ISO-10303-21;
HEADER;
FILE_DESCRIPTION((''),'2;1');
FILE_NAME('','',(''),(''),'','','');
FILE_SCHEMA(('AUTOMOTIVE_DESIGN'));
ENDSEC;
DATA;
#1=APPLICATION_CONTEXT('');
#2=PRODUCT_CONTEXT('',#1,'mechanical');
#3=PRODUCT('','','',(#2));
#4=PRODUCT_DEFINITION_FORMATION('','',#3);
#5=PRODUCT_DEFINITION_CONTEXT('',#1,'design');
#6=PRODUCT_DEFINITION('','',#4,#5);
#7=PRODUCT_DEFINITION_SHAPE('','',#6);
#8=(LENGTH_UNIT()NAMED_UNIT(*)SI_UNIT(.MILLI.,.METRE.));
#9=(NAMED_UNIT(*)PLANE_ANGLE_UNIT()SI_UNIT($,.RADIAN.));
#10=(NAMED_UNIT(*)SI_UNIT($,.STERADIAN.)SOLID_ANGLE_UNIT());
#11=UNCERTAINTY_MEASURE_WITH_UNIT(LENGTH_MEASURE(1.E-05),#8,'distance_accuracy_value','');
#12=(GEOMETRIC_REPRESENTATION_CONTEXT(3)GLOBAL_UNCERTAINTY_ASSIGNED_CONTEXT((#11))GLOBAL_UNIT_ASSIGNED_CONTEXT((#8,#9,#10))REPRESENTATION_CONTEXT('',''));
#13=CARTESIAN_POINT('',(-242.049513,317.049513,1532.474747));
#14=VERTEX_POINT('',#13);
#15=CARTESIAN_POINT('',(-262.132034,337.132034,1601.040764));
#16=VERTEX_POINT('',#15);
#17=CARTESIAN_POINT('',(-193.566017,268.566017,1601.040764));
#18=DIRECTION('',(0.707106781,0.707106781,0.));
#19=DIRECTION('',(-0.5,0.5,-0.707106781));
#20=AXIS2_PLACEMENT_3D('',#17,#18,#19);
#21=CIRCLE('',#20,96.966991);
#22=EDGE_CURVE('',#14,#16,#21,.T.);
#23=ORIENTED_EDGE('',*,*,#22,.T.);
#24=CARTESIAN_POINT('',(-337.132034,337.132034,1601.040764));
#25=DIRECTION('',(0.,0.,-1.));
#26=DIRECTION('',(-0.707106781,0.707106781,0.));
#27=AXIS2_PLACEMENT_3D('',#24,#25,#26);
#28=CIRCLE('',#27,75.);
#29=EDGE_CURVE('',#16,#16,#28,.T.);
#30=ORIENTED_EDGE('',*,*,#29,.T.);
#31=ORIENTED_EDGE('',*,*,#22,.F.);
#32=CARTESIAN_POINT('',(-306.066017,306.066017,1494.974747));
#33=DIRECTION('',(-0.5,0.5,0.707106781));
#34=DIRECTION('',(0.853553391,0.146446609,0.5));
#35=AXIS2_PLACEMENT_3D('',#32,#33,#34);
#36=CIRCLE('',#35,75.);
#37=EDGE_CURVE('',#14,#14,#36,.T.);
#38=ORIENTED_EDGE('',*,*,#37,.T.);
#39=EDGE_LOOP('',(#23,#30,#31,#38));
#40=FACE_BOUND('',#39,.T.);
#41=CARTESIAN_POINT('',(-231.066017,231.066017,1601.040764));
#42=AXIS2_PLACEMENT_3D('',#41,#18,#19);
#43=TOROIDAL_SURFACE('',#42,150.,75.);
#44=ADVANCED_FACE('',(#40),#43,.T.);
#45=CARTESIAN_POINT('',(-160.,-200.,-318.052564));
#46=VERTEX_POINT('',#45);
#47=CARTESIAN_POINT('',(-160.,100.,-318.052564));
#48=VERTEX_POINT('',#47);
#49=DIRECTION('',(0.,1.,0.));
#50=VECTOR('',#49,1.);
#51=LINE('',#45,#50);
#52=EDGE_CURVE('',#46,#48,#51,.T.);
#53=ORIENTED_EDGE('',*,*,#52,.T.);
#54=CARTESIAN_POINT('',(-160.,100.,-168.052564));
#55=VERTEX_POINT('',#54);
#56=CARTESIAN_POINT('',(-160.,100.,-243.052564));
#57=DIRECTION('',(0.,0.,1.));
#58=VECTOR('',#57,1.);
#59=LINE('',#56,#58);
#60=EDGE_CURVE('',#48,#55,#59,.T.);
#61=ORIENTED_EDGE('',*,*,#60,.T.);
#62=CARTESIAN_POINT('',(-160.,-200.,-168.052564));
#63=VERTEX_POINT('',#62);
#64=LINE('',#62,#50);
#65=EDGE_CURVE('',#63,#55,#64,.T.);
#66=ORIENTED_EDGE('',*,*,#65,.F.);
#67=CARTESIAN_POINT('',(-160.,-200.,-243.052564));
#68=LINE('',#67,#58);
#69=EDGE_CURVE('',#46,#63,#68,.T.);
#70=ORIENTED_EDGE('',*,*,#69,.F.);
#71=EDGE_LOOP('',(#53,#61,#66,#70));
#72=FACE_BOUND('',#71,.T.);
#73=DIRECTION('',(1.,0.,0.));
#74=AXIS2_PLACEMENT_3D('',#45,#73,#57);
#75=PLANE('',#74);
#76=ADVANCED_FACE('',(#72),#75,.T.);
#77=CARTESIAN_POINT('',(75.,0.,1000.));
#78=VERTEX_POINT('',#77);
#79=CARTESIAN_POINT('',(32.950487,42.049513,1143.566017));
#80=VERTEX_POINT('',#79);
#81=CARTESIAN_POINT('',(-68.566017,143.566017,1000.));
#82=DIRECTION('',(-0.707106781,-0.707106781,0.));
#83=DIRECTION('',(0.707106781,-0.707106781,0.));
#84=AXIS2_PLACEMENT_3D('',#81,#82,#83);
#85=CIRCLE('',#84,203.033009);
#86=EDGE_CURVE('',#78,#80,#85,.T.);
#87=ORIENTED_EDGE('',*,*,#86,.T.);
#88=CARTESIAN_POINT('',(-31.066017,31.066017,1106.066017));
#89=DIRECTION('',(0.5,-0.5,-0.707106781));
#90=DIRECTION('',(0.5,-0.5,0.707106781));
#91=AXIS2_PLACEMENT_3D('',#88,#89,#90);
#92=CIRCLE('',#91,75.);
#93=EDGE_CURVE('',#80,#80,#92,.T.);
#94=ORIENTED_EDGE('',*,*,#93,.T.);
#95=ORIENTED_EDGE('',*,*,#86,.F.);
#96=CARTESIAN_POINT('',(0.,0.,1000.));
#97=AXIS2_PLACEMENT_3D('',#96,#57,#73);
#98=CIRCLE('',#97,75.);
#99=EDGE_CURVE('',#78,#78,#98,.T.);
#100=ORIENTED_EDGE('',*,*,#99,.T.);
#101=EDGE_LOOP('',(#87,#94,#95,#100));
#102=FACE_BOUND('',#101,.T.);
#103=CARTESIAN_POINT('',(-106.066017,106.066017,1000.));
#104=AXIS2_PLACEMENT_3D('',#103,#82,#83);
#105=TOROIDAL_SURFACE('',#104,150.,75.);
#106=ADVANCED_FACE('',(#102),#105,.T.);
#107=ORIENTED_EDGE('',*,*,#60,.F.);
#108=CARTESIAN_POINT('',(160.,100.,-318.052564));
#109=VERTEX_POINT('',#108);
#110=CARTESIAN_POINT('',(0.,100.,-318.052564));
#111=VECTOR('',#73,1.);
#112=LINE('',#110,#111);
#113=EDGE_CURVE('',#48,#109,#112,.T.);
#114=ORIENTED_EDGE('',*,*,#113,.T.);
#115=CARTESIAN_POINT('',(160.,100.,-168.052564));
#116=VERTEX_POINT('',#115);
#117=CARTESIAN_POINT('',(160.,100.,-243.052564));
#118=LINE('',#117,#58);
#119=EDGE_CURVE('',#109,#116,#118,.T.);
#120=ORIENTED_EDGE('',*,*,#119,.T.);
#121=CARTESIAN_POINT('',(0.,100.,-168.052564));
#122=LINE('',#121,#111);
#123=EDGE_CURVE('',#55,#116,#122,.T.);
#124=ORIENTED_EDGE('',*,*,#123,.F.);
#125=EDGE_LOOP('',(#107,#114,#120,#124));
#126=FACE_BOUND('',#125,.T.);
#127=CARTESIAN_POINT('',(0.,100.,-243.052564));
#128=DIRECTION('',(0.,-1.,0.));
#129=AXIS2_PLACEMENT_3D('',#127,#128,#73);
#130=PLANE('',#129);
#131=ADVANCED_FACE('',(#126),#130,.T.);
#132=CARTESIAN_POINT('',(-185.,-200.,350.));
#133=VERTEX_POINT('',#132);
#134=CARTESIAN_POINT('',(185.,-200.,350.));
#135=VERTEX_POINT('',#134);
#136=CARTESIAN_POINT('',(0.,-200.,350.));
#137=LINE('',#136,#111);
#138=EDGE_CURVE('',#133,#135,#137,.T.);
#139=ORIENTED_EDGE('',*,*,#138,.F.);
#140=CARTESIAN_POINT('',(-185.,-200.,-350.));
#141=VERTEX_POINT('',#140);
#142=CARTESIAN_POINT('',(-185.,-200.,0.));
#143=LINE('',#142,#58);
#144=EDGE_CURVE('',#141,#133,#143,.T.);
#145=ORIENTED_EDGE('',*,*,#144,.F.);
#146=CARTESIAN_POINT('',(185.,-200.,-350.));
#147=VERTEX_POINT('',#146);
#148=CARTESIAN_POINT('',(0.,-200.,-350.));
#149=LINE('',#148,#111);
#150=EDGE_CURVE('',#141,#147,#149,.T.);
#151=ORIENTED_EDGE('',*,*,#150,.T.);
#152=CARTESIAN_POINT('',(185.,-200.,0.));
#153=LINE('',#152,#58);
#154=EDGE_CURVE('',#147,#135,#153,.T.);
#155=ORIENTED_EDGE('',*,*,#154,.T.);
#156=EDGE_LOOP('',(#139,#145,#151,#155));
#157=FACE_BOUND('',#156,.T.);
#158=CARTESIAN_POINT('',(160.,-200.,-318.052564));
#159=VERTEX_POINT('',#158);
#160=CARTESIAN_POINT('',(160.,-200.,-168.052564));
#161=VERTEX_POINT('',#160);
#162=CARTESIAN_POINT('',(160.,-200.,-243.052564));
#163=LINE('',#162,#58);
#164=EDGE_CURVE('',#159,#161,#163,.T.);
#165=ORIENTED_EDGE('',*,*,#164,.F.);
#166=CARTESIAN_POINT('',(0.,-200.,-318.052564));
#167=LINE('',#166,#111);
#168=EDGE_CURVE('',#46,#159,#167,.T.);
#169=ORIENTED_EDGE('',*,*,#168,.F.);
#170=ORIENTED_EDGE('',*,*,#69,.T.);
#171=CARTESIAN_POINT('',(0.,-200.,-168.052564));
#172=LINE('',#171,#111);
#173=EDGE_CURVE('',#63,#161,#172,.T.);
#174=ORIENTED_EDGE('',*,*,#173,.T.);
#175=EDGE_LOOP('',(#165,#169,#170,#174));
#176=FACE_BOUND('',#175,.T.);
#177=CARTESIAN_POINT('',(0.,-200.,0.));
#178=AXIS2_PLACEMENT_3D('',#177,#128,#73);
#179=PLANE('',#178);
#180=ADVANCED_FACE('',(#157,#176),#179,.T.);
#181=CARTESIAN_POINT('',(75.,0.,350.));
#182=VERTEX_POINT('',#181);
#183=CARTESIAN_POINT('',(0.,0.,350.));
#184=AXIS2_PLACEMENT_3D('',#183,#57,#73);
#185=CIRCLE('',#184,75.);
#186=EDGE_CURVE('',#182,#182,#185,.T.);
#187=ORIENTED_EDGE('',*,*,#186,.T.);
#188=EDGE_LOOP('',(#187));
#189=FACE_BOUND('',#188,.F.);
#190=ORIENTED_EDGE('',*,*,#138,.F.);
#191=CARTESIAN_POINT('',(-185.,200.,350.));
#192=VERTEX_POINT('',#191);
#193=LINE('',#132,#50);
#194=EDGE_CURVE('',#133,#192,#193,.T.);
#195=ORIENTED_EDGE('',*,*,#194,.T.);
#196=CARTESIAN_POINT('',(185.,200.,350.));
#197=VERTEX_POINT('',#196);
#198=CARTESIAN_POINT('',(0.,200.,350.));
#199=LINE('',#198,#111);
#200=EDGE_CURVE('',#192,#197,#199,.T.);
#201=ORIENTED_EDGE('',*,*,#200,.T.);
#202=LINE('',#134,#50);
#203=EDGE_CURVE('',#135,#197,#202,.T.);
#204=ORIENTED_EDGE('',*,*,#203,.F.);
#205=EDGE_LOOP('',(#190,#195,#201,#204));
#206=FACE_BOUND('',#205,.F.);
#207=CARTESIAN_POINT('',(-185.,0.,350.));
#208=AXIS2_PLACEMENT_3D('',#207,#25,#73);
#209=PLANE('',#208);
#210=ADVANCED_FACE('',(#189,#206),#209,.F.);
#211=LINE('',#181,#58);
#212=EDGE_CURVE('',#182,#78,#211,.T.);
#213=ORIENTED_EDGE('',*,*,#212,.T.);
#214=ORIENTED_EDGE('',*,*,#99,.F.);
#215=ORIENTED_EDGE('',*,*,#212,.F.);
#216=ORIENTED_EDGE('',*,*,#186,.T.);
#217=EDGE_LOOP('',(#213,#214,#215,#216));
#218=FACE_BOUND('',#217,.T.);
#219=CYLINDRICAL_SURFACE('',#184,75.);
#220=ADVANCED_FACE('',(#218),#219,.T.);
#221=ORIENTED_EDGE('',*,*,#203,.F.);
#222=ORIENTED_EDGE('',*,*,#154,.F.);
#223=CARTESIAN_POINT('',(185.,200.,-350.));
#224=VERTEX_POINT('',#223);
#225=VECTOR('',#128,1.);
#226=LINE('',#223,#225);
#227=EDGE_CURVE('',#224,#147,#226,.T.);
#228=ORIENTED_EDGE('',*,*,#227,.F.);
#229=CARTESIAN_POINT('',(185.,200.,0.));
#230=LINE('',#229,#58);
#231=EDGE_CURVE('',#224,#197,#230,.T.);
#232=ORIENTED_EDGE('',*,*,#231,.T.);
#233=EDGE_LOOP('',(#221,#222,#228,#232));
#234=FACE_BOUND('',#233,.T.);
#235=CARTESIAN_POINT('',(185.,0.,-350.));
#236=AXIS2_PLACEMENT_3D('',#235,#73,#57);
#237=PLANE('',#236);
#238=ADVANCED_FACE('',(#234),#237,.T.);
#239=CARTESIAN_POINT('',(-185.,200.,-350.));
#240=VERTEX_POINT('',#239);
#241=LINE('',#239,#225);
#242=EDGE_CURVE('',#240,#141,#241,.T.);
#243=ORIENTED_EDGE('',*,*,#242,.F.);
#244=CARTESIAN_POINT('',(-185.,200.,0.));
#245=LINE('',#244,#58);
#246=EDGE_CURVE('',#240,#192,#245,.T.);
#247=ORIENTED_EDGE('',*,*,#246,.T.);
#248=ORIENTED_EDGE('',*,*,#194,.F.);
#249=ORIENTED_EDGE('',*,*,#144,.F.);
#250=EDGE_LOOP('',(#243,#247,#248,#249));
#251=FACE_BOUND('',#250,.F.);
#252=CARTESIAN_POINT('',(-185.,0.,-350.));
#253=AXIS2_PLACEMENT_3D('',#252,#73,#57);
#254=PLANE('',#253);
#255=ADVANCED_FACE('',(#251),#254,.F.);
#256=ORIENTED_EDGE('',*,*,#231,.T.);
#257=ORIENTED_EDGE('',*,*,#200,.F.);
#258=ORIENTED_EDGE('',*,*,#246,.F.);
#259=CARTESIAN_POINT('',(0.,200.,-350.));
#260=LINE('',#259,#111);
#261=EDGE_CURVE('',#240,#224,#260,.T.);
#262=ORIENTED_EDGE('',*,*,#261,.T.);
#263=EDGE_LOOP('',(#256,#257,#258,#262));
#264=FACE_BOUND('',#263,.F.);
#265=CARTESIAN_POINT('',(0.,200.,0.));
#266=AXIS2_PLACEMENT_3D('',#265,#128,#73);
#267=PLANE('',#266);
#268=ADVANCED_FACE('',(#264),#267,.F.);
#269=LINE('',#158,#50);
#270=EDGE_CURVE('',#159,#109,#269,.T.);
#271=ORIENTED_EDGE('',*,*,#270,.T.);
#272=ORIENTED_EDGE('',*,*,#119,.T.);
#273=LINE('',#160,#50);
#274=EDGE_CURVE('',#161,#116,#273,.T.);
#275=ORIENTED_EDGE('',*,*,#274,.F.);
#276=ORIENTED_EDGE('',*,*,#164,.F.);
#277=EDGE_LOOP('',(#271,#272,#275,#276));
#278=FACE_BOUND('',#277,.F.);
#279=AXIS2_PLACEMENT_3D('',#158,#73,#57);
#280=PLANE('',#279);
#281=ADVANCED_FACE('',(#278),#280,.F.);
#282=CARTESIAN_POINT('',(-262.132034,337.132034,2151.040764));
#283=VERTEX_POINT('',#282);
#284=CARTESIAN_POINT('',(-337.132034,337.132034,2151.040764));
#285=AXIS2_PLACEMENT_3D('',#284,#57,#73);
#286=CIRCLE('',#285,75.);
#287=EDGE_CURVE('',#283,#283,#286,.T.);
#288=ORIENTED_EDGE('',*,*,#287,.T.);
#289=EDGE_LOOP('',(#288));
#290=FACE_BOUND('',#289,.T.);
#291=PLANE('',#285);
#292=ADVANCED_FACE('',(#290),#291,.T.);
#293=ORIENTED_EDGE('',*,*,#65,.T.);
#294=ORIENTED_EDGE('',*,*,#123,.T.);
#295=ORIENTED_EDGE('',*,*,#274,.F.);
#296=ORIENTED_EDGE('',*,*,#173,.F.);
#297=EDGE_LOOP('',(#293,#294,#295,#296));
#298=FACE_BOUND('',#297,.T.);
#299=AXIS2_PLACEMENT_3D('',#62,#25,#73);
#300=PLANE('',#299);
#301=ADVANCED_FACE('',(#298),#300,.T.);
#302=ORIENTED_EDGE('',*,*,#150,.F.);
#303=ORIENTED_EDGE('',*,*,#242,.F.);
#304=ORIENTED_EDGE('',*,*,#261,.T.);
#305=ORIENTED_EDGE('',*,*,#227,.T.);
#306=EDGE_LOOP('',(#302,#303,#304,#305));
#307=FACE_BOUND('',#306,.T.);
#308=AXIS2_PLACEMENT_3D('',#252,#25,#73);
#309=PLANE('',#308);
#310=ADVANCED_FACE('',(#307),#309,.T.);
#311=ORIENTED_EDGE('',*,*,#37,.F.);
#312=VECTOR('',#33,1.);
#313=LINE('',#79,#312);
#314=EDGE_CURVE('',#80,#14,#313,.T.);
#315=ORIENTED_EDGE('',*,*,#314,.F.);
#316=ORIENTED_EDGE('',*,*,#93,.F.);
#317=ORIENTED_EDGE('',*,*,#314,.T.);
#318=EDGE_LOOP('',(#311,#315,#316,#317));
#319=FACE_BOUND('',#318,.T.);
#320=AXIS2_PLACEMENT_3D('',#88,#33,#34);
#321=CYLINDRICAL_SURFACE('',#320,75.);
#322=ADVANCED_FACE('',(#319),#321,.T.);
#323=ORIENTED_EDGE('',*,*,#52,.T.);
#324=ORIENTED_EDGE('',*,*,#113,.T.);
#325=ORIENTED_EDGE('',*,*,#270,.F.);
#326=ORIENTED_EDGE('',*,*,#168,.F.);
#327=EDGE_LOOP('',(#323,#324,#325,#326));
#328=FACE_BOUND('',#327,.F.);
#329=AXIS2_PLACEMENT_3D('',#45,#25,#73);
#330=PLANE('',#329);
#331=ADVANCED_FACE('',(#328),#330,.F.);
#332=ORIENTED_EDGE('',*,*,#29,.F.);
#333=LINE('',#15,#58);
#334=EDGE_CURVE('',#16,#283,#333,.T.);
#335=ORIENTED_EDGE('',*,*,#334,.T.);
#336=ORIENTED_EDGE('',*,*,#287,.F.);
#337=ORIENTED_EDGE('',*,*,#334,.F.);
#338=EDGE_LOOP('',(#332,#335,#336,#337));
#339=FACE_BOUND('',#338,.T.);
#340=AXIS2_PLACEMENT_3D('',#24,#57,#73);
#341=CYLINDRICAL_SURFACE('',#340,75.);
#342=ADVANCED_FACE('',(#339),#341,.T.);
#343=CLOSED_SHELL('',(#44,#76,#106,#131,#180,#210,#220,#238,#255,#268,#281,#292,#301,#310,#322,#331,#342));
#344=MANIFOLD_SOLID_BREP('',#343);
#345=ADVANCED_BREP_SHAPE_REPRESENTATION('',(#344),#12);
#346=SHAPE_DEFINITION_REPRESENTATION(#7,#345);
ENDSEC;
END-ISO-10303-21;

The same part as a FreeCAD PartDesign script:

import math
import FreeCAD as App
import Part
import Sketcher
Q = App.Units.Quantity

doc = App.newDocument("Part")
body = doc.addObject("PartDesign::Body", "Body")

# Sketch on XZ plane
sketch1 = body.newObject("Sketcher::SketchObject", "Sketch")
sketch1.AttachmentSupport = (doc.getObject("XZ_Plane"), [""])
sketch1.MapMode = "FlatFace"
sketch1.addGeometry(Part.LineSegment(App.Vector(-185, 350, 0), App.Vector(-185, -350, 0)), False)
sketch1.addGeometry(Part.LineSegment(App.Vector(-185, -350, 0), App.Vector(185, -350, 0)), False)
sketch1.addGeometry(Part.LineSegment(App.Vector(185, -350, 0), App.Vector(185, 350, 0)), False)
sketch1.addGeometry(Part.LineSegment(App.Vector(185, 350, 0), App.Vector(-185, 350, 0)), False)
sketch1.addConstraint(Sketcher.Constraint("Coincident", 0, 2, 1, 1))
sketch1.addConstraint(Sketcher.Constraint("Coincident", 1, 2, 2, 1))
sketch1.addConstraint(Sketcher.Constraint("Coincident", 2, 2, 3, 1))
sketch1.addConstraint(Sketcher.Constraint("Coincident", 3, 2, 0, 1))
sketch1.addConstraint(Sketcher.Constraint("Vertical", 0))
sketch1.addConstraint(Sketcher.Constraint("Horizontal", 1))
sketch1.addConstraint(Sketcher.Constraint("Vertical", 2))
sketch1.addConstraint(Sketcher.Constraint("Horizontal", 3))
sketch1.addConstraint(Sketcher.Constraint("Symmetric", 0, 2, 2, 2, -1, 1))
sketch1.addConstraint(Sketcher.Constraint("DistanceX", 1, 1, 1, 2, Q("370 mm")))
sketch1.addConstraint(Sketcher.Constraint("DistanceY", 0, 2, 0, 1, Q("700 mm")))
pad1 = body.newObject("PartDesign::Pad", "Pad")
pad1.Profile = sketch1
pad1.Length = 400
pad1.Midplane = True

# Sketch on XY plane
sketch2 = body.newObject("Sketcher::SketchObject", "Sketch001")
sketch2.AttachmentSupport = (doc.getObject("XY_Plane"), [""])
sketch2.MapMode = "FlatFace"
sketch2.AttachmentOffset = App.Placement(App.Vector(0, 0, 350), App.Rotation())
sketch2.addGeometry(Part.Circle(App.Vector(0, 0, 0), App.Vector(0, 0, 1), 75), False)
sketch2.addConstraint(Sketcher.Constraint("Coincident", 0, 3, -1, 1))
sketch2.addConstraint(Sketcher.Constraint("Diameter", 0, Q("150 mm")))

# Sketch on an angled plane
sketch3 = body.newObject("Sketcher::SketchObject", "Sketch002")
sketch3.Placement = App.Placement(App.Vector(0, 0, 0), App.Rotation(App.Vector(0.707106781, -0.707106781, 0), App.Vector(0, 0, 0.999999999), App.Vector(-0.707106781, -0.707106781, 0), "ZXY"))
sketch3.addGeometry(Part.LineSegment(App.Vector(0, 350, 0), App.Vector(0, 999.999999, 0)), False)
sketch3.addGeometry(Part.ArcOfCircle(Part.Circle(App.Vector(-150, 999.999999, 0), App.Vector(0, 0, 1), 150), math.radians(0), math.radians(45)), False)
sketch3.addGeometry(Part.LineSegment(App.Vector(-43.933983, 1106.066016, 0), App.Vector(-432.842712, 1494.974745, 0)), False)
sketch3.addGeometry(Part.ArcOfCircle(Part.Circle(App.Vector(-326.776695, 1601.040762, 0), App.Vector(0, 0, 1), 150), math.radians(180), math.radians(225)), False)
sketch3.addGeometry(Part.LineSegment(App.Vector(-476.776695, 1601.040762, 0), App.Vector(-476.776695, 2151.040762, 0)), False)
sketch3.addConstraint(Sketcher.Constraint("Tangent", 0, 2, 1, 1))
sketch3.addConstraint(Sketcher.Constraint("Tangent", 1, 2, 2, 1))
sketch3.addConstraint(Sketcher.Constraint("Tangent", 2, 2, 3, 2))
sketch3.addConstraint(Sketcher.Constraint("Tangent", 3, 1, 4, 1))
sketch3.addConstraint(Sketcher.Constraint("Vertical", 0))
sketch3.addConstraint(Sketcher.Constraint("Vertical", 4))
sketch3.addConstraint(Sketcher.Constraint("Equal", 1, 3))
sketch3.addConstraint(Sketcher.Constraint("PointOnObject", 0, 1, -2))
sketch3.addConstraint(Sketcher.Constraint("Radius", 1, Q("150 mm")))
sketch3.addConstraint(Sketcher.Constraint("DistanceY", 0, 1, 0, 2, Q("649.999999 mm")))
sketch3.addConstraint(Sketcher.Constraint("DistanceY", 4, 1, 4, 2, Q("549.999999 mm")))
sketch3.addConstraint(Sketcher.Constraint("Angle", 2, Q("135 deg")))
sketch3.addConstraint(Sketcher.Constraint("Distance", 2, Q("550 mm")))
sketch3.addConstraint(Sketcher.Constraint("DistanceY", -1, 1, 1, 3, Q("999.999999 mm")))
doc.recompute()

additivepipe = body.newObject("PartDesign::AdditivePipe", "AdditivePipe")
additivepipe.Profile = sketch2
additivepipe.Spine = (sketch3, ["Edge1", "Edge2", "Edge3", "Edge4", "Edge5"])

# Sketch on XZ plane
sketch4 = body.newObject("Sketcher::SketchObject", "Sketch003")
sketch4.AttachmentSupport = (doc.getObject("XZ_Plane"), [""])
sketch4.MapMode = "FlatFace"
sketch4.AttachmentOffset = App.Placement(App.Vector(0, 0, 200), App.Rotation())
sketch4.addGeometry(Part.LineSegment(App.Vector(-160, -168.052564, 0), App.Vector(-160, -318.052564, 0)), False)
sketch4.addGeometry(Part.LineSegment(App.Vector(-160, -318.052564, 0), App.Vector(160, -318.052564, 0)), False)
sketch4.addGeometry(Part.LineSegment(App.Vector(160, -318.052564, 0), App.Vector(160, -168.052564, 0)), False)
sketch4.addGeometry(Part.LineSegment(App.Vector(160, -168.052564, 0), App.Vector(-160, -168.052564, 0)), False)
sketch4.addConstraint(Sketcher.Constraint("Coincident", 0, 2, 1, 1))
sketch4.addConstraint(Sketcher.Constraint("Coincident", 1, 2, 2, 1))
sketch4.addConstraint(Sketcher.Constraint("Coincident", 2, 2, 3, 1))
sketch4.addConstraint(Sketcher.Constraint("Coincident", 3, 2, 0, 1))
sketch4.addConstraint(Sketcher.Constraint("Vertical", 0))
sketch4.addConstraint(Sketcher.Constraint("Horizontal", 1))
sketch4.addConstraint(Sketcher.Constraint("Vertical", 2))
sketch4.addConstraint(Sketcher.Constraint("Horizontal", 3))
sketch4.addConstraint(Sketcher.Constraint("DistanceX", 1, 1, 1, 2, Q("320 mm")))
sketch4.addConstraint(Sketcher.Constraint("DistanceY", 0, 2, 0, 1, Q("150 mm")))
sketch4.addConstraint(Sketcher.Constraint("DistanceX", 0, 2, -1, 1, Q("160 mm")))
sketch4.addConstraint(Sketcher.Constraint("DistanceY", 0, 2, -1, 1, Q("318.052564 mm")))
pocket1 = body.newObject("PartDesign::Pocket", "Pocket")
pocket1.Profile = sketch4
pocket1.Length = 300

doc.recompute()
